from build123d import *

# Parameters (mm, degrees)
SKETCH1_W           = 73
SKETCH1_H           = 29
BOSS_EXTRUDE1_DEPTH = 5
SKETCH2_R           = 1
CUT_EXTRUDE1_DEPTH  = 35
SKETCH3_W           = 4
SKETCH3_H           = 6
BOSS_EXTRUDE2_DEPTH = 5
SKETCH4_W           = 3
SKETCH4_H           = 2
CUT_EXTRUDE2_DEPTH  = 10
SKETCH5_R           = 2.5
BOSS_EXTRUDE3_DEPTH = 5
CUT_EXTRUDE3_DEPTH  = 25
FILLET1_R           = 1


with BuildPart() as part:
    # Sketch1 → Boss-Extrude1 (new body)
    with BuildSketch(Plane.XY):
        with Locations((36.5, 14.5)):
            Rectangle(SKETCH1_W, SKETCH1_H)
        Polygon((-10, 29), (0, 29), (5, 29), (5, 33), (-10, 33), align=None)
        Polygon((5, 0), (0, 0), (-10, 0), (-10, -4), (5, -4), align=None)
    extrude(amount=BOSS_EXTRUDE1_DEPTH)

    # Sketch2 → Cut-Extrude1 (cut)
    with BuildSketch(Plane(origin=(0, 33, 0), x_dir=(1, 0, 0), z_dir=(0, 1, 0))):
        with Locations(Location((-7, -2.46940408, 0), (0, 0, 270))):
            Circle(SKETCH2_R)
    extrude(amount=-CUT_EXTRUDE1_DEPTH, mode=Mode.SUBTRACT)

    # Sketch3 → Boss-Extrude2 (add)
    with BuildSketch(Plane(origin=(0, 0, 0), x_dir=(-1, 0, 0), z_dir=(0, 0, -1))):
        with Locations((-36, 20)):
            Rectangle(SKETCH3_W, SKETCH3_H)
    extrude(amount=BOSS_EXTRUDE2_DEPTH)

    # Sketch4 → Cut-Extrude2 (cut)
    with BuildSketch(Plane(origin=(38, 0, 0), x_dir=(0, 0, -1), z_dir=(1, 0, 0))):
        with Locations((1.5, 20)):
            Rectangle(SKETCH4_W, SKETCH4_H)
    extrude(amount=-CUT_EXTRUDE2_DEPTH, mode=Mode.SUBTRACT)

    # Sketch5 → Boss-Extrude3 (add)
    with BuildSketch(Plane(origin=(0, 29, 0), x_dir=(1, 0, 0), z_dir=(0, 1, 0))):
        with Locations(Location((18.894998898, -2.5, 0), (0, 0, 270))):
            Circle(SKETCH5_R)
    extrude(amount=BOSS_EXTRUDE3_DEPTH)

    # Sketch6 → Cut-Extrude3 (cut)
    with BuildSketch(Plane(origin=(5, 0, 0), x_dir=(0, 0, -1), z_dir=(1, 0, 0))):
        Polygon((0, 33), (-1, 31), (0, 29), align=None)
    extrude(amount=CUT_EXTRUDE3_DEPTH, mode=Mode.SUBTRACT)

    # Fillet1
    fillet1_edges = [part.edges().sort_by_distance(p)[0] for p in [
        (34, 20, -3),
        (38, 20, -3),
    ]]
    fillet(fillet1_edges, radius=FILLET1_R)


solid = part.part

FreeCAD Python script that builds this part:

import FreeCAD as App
import Part
import Sketcher

V = App.Vector
Q = App.Units.Quantity


def edges_at(feature, points):
    """Names of the edges that pass closest to the given points."""
    edges = feature.Shape.Edges
    near = lambda p: min(range(len(edges)), key=lambda i: edges[i].distToShape(Part.Vertex(*p))[0])
    return sorted({f"Edge{near(p) + 1}" for p in points})


def add_polygon(sketch, points):
    """Adds a closed chain of lines whose ends are joined by coincident constraints."""
    first, n = sketch.GeometryCount, len(points)
    for a, b in zip(points, points[1:] + points[:1]):
        sketch.addGeometry(Part.LineSegment(App.Vector(*a, 0), App.Vector(*b, 0)), False)
    for i in range(n):
        sketch.addConstraint(Sketcher.Constraint("Coincident", first + i, 2, first + (i + 1) % n, 1))

doc = App.newDocument("Part")
body = doc.addObject("PartDesign::Body", "Body")

# Sketch on XY plane
sketch1 = body.newObject("Sketcher::SketchObject", "Sketch")
sketch1.AttachmentSupport = (doc.getObject("XY_Plane"), [""])
sketch1.MapMode = "FlatFace"
add_polygon(sketch1, [(0, 29), (0, 0), (-10, 0), (-10, -4), (5, -4), (5, 0), (73, 0), (73, 29), (5, 29), (5, 33), (-10, 33), (-10, 29)])  # lines 0-11
sketch1.addConstraint([
    Sketcher.Constraint("Vertical", 0),
    Sketcher.Constraint("Horizontal", 1),
    Sketcher.Constraint("Vertical", 2),
    Sketcher.Constraint("Horizontal", 3),
    Sketcher.Constraint("Vertical", 4),
    Sketcher.Constraint("Horizontal", 5),
    Sketcher.Constraint("Vertical", 6),
    Sketcher.Constraint("Horizontal", 7),
    Sketcher.Constraint("Vertical", 8),
    Sketcher.Constraint("Horizontal", 9),
    Sketcher.Constraint("Vertical", 10),
    Sketcher.Constraint("Horizontal", 11),
    Sketcher.Constraint("Coincident", 0, 2, -1, 1),
    Sketcher.Constraint("PointOnObject", 4, 2, -1),
    Sketcher.Constraint("Horizontal", 7, 2, 10, 2),
    Sketcher.Constraint("Vertical", 4, 2, 7, 2),
    Sketcher.Constraint("Vertical", 2, 2, 9, 2),
    Sketcher.Constraint("Equal", 4, 8),
    Sketcher.Constraint("DistanceX", 1, 2, 1, 1, Q("10 mm")),
    Sketcher.Constraint("DistanceX", 3, 1, 3, 2, Q("15 mm")),
    Sketcher.Constraint("DistanceX", 5, 1, 5, 2, Q("68 mm")),
    Sketcher.Constraint("DistanceY", 0, 2, 0, 1, Q("29 mm")),
    Sketcher.Constraint("DistanceY", 2, 2, 2, 1, Q("4 mm")),
])
pad1 = body.newObject("PartDesign::Pad", "Pad")
pad1.Profile = sketch1
pad1.Length = 5

# Sketch on XZ plane
sketch2 = body.newObject("Sketcher::SketchObject", "Sketch001")
sketch2.AttachmentSupport = (doc.getObject("XZ_Plane"), [""])
sketch2.MapMode = "FlatFace"
sketch2.AttachmentOffset = App.Placement(V(0, 0, -33), App.Rotation())
sketch2.addGeometry(Part.Circle(V(-7, 2.5, 0), V(0, 0, 1), 1), False)
sketch2.addConstraint([
    Sketcher.Constraint("Diameter", 0, Q("2 mm")),
    Sketcher.Constraint("DistanceX", 0, 3, -1, 1, Q("7 mm")),
    Sketcher.Constraint("DistanceY", -1, 1, 0, 3, Q("2.469404 mm")),
])
pocket1 = body.newObject("PartDesign::Pocket", "Pocket")
pocket1.Profile = sketch2
pocket1.Length = 35
pocket1.Reversed = True

# Sketch on XY plane
sketch3 = body.newObject("Sketcher::SketchObject", "Sketch002")
sketch3.AttachmentSupport = (doc.getObject("XY_Plane"), [""])
sketch3.MapMode = "FlatFace"
add_polygon(sketch3, [(38, 23), (38, 17), (34, 17), (34, 23)])  # lines 0-3
sketch3.addConstraint([
    Sketcher.Constraint("Vertical", 0),
    Sketcher.Constraint("Horizontal", 1),
    Sketcher.Constraint("Vertical", 2),
    Sketcher.Constraint("Horizontal", 3),
    Sketcher.Constraint("DistanceX", 1, 2, 1, 1, Q("4 mm")),
    Sketcher.Constraint("DistanceY", 0, 2, 0, 1, Q("6 mm")),
    Sketcher.Constraint("DistanceX", -1, 1, 0, 2, Q("38 mm")),
    Sketcher.Constraint("DistanceY", -1, 1, 0, 2, Q("17 mm")),
])
pad2 = body.newObject("PartDesign::Pad", "Pad001")
pad2.Profile = sketch3
pad2.Length = 5
pad2.Reversed = True

# Sketch on YZ plane
sketch4 = body.newObject("Sketcher::SketchObject", "Sketch003")
sketch4.AttachmentSupport = (doc.getObject("YZ_Plane"), [""])
sketch4.MapMode = "FlatFace"
sketch4.AttachmentOffset = App.Placement(V(0, 0, 38), App.Rotation())
add_polygon(sketch4, [(21, 0), (19, 0), (19, -3), (21, -3)])  # lines 0-3
sketch4.addConstraint([
    Sketcher.Constraint("Horizontal", 0),
    Sketcher.Constraint("Vertical", 1),
    Sketcher.Constraint("Horizontal", 2),
    Sketcher.Constraint("Vertical", 3),
    Sketcher.Constraint("PointOnObject", 0, 2, -1),
    Sketcher.Constraint("DistanceX", 0, 2, 0, 1, Q("2 mm")),
    Sketcher.Constraint("DistanceY", 1, 2, 1, 1, Q("3 mm")),
    Sketcher.Constraint("DistanceX", -1, 1, 0, 2, Q("19 mm")),
])
pocket2 = body.newObject("PartDesign::Pocket", "Pocket001")
pocket2.Profile = sketch4
pocket2.Length = 10

# Sketch on XZ plane
sketch5 = body.newObject("Sketcher::SketchObject", "Sketch004")
sketch5.AttachmentSupport = (doc.getObject("XZ_Plane"), [""])
sketch5.MapMode = "FlatFace"
sketch5.AttachmentOffset = App.Placement(V(0, 0, -29), App.Rotation())
sketch5.addGeometry(Part.Circle(V(18.9, 2.5, 0), V(0, 0, 1), 2.5), False)
sketch5.addConstraint([
    Sketcher.Constraint("Diameter", 0, Q("5 mm")),
    Sketcher.Constraint("DistanceY", -1, 1, 0, 3, Q("2.5 mm")),
    Sketcher.Constraint("DistanceX", -1, 1, 0, 3, Q("18.894999 mm")),
])
pad3 = body.newObject("PartDesign::Pad", "Pad002")
pad3.Profile = sketch5
pad3.Length = 5
pad3.Reversed = True

# Sketch on YZ plane
sketch6 = body.newObject("Sketcher::SketchObject", "Sketch005")
sketch6.AttachmentSupport = (doc.getObject("YZ_Plane"), [""])
sketch6.MapMode = "FlatFace"
sketch6.AttachmentOffset = App.Placement(V(0, 0, 5), App.Rotation())
add_polygon(sketch6, [(33, 0), (31, 1), (29, 0)])  # lines 0-2
sketch6.addConstraint([
    Sketcher.Constraint("Horizontal", 2),
    Sketcher.Constraint("PointOnObject", 1, 2, -1),
    Sketcher.Constraint("Equal", 0, 1),
    Sketcher.Constraint("DistanceX", 2, 1, 2, 2, Q("4 mm")),
    Sketcher.Constraint("DistanceX", -1, 1, 0, 2, Q("31 mm")),
    Sketcher.Constraint("DistanceY", -1, 1, 0, 2, Q("1 mm")),
])
pocket3 = body.newObject("PartDesign::Pocket", "Pocket002")
pocket3.Profile = sketch6
pocket3.Length = 25
pocket3.Reversed = True
doc.recompute()

fillet = body.newObject("PartDesign::Fillet", "Fillet")
fillet.Base = (pocket3, edges_at(pocket3, [(34, 20, -3), (38, 20, -3)]))
fillet.Radius = 1

doc.recompute()
